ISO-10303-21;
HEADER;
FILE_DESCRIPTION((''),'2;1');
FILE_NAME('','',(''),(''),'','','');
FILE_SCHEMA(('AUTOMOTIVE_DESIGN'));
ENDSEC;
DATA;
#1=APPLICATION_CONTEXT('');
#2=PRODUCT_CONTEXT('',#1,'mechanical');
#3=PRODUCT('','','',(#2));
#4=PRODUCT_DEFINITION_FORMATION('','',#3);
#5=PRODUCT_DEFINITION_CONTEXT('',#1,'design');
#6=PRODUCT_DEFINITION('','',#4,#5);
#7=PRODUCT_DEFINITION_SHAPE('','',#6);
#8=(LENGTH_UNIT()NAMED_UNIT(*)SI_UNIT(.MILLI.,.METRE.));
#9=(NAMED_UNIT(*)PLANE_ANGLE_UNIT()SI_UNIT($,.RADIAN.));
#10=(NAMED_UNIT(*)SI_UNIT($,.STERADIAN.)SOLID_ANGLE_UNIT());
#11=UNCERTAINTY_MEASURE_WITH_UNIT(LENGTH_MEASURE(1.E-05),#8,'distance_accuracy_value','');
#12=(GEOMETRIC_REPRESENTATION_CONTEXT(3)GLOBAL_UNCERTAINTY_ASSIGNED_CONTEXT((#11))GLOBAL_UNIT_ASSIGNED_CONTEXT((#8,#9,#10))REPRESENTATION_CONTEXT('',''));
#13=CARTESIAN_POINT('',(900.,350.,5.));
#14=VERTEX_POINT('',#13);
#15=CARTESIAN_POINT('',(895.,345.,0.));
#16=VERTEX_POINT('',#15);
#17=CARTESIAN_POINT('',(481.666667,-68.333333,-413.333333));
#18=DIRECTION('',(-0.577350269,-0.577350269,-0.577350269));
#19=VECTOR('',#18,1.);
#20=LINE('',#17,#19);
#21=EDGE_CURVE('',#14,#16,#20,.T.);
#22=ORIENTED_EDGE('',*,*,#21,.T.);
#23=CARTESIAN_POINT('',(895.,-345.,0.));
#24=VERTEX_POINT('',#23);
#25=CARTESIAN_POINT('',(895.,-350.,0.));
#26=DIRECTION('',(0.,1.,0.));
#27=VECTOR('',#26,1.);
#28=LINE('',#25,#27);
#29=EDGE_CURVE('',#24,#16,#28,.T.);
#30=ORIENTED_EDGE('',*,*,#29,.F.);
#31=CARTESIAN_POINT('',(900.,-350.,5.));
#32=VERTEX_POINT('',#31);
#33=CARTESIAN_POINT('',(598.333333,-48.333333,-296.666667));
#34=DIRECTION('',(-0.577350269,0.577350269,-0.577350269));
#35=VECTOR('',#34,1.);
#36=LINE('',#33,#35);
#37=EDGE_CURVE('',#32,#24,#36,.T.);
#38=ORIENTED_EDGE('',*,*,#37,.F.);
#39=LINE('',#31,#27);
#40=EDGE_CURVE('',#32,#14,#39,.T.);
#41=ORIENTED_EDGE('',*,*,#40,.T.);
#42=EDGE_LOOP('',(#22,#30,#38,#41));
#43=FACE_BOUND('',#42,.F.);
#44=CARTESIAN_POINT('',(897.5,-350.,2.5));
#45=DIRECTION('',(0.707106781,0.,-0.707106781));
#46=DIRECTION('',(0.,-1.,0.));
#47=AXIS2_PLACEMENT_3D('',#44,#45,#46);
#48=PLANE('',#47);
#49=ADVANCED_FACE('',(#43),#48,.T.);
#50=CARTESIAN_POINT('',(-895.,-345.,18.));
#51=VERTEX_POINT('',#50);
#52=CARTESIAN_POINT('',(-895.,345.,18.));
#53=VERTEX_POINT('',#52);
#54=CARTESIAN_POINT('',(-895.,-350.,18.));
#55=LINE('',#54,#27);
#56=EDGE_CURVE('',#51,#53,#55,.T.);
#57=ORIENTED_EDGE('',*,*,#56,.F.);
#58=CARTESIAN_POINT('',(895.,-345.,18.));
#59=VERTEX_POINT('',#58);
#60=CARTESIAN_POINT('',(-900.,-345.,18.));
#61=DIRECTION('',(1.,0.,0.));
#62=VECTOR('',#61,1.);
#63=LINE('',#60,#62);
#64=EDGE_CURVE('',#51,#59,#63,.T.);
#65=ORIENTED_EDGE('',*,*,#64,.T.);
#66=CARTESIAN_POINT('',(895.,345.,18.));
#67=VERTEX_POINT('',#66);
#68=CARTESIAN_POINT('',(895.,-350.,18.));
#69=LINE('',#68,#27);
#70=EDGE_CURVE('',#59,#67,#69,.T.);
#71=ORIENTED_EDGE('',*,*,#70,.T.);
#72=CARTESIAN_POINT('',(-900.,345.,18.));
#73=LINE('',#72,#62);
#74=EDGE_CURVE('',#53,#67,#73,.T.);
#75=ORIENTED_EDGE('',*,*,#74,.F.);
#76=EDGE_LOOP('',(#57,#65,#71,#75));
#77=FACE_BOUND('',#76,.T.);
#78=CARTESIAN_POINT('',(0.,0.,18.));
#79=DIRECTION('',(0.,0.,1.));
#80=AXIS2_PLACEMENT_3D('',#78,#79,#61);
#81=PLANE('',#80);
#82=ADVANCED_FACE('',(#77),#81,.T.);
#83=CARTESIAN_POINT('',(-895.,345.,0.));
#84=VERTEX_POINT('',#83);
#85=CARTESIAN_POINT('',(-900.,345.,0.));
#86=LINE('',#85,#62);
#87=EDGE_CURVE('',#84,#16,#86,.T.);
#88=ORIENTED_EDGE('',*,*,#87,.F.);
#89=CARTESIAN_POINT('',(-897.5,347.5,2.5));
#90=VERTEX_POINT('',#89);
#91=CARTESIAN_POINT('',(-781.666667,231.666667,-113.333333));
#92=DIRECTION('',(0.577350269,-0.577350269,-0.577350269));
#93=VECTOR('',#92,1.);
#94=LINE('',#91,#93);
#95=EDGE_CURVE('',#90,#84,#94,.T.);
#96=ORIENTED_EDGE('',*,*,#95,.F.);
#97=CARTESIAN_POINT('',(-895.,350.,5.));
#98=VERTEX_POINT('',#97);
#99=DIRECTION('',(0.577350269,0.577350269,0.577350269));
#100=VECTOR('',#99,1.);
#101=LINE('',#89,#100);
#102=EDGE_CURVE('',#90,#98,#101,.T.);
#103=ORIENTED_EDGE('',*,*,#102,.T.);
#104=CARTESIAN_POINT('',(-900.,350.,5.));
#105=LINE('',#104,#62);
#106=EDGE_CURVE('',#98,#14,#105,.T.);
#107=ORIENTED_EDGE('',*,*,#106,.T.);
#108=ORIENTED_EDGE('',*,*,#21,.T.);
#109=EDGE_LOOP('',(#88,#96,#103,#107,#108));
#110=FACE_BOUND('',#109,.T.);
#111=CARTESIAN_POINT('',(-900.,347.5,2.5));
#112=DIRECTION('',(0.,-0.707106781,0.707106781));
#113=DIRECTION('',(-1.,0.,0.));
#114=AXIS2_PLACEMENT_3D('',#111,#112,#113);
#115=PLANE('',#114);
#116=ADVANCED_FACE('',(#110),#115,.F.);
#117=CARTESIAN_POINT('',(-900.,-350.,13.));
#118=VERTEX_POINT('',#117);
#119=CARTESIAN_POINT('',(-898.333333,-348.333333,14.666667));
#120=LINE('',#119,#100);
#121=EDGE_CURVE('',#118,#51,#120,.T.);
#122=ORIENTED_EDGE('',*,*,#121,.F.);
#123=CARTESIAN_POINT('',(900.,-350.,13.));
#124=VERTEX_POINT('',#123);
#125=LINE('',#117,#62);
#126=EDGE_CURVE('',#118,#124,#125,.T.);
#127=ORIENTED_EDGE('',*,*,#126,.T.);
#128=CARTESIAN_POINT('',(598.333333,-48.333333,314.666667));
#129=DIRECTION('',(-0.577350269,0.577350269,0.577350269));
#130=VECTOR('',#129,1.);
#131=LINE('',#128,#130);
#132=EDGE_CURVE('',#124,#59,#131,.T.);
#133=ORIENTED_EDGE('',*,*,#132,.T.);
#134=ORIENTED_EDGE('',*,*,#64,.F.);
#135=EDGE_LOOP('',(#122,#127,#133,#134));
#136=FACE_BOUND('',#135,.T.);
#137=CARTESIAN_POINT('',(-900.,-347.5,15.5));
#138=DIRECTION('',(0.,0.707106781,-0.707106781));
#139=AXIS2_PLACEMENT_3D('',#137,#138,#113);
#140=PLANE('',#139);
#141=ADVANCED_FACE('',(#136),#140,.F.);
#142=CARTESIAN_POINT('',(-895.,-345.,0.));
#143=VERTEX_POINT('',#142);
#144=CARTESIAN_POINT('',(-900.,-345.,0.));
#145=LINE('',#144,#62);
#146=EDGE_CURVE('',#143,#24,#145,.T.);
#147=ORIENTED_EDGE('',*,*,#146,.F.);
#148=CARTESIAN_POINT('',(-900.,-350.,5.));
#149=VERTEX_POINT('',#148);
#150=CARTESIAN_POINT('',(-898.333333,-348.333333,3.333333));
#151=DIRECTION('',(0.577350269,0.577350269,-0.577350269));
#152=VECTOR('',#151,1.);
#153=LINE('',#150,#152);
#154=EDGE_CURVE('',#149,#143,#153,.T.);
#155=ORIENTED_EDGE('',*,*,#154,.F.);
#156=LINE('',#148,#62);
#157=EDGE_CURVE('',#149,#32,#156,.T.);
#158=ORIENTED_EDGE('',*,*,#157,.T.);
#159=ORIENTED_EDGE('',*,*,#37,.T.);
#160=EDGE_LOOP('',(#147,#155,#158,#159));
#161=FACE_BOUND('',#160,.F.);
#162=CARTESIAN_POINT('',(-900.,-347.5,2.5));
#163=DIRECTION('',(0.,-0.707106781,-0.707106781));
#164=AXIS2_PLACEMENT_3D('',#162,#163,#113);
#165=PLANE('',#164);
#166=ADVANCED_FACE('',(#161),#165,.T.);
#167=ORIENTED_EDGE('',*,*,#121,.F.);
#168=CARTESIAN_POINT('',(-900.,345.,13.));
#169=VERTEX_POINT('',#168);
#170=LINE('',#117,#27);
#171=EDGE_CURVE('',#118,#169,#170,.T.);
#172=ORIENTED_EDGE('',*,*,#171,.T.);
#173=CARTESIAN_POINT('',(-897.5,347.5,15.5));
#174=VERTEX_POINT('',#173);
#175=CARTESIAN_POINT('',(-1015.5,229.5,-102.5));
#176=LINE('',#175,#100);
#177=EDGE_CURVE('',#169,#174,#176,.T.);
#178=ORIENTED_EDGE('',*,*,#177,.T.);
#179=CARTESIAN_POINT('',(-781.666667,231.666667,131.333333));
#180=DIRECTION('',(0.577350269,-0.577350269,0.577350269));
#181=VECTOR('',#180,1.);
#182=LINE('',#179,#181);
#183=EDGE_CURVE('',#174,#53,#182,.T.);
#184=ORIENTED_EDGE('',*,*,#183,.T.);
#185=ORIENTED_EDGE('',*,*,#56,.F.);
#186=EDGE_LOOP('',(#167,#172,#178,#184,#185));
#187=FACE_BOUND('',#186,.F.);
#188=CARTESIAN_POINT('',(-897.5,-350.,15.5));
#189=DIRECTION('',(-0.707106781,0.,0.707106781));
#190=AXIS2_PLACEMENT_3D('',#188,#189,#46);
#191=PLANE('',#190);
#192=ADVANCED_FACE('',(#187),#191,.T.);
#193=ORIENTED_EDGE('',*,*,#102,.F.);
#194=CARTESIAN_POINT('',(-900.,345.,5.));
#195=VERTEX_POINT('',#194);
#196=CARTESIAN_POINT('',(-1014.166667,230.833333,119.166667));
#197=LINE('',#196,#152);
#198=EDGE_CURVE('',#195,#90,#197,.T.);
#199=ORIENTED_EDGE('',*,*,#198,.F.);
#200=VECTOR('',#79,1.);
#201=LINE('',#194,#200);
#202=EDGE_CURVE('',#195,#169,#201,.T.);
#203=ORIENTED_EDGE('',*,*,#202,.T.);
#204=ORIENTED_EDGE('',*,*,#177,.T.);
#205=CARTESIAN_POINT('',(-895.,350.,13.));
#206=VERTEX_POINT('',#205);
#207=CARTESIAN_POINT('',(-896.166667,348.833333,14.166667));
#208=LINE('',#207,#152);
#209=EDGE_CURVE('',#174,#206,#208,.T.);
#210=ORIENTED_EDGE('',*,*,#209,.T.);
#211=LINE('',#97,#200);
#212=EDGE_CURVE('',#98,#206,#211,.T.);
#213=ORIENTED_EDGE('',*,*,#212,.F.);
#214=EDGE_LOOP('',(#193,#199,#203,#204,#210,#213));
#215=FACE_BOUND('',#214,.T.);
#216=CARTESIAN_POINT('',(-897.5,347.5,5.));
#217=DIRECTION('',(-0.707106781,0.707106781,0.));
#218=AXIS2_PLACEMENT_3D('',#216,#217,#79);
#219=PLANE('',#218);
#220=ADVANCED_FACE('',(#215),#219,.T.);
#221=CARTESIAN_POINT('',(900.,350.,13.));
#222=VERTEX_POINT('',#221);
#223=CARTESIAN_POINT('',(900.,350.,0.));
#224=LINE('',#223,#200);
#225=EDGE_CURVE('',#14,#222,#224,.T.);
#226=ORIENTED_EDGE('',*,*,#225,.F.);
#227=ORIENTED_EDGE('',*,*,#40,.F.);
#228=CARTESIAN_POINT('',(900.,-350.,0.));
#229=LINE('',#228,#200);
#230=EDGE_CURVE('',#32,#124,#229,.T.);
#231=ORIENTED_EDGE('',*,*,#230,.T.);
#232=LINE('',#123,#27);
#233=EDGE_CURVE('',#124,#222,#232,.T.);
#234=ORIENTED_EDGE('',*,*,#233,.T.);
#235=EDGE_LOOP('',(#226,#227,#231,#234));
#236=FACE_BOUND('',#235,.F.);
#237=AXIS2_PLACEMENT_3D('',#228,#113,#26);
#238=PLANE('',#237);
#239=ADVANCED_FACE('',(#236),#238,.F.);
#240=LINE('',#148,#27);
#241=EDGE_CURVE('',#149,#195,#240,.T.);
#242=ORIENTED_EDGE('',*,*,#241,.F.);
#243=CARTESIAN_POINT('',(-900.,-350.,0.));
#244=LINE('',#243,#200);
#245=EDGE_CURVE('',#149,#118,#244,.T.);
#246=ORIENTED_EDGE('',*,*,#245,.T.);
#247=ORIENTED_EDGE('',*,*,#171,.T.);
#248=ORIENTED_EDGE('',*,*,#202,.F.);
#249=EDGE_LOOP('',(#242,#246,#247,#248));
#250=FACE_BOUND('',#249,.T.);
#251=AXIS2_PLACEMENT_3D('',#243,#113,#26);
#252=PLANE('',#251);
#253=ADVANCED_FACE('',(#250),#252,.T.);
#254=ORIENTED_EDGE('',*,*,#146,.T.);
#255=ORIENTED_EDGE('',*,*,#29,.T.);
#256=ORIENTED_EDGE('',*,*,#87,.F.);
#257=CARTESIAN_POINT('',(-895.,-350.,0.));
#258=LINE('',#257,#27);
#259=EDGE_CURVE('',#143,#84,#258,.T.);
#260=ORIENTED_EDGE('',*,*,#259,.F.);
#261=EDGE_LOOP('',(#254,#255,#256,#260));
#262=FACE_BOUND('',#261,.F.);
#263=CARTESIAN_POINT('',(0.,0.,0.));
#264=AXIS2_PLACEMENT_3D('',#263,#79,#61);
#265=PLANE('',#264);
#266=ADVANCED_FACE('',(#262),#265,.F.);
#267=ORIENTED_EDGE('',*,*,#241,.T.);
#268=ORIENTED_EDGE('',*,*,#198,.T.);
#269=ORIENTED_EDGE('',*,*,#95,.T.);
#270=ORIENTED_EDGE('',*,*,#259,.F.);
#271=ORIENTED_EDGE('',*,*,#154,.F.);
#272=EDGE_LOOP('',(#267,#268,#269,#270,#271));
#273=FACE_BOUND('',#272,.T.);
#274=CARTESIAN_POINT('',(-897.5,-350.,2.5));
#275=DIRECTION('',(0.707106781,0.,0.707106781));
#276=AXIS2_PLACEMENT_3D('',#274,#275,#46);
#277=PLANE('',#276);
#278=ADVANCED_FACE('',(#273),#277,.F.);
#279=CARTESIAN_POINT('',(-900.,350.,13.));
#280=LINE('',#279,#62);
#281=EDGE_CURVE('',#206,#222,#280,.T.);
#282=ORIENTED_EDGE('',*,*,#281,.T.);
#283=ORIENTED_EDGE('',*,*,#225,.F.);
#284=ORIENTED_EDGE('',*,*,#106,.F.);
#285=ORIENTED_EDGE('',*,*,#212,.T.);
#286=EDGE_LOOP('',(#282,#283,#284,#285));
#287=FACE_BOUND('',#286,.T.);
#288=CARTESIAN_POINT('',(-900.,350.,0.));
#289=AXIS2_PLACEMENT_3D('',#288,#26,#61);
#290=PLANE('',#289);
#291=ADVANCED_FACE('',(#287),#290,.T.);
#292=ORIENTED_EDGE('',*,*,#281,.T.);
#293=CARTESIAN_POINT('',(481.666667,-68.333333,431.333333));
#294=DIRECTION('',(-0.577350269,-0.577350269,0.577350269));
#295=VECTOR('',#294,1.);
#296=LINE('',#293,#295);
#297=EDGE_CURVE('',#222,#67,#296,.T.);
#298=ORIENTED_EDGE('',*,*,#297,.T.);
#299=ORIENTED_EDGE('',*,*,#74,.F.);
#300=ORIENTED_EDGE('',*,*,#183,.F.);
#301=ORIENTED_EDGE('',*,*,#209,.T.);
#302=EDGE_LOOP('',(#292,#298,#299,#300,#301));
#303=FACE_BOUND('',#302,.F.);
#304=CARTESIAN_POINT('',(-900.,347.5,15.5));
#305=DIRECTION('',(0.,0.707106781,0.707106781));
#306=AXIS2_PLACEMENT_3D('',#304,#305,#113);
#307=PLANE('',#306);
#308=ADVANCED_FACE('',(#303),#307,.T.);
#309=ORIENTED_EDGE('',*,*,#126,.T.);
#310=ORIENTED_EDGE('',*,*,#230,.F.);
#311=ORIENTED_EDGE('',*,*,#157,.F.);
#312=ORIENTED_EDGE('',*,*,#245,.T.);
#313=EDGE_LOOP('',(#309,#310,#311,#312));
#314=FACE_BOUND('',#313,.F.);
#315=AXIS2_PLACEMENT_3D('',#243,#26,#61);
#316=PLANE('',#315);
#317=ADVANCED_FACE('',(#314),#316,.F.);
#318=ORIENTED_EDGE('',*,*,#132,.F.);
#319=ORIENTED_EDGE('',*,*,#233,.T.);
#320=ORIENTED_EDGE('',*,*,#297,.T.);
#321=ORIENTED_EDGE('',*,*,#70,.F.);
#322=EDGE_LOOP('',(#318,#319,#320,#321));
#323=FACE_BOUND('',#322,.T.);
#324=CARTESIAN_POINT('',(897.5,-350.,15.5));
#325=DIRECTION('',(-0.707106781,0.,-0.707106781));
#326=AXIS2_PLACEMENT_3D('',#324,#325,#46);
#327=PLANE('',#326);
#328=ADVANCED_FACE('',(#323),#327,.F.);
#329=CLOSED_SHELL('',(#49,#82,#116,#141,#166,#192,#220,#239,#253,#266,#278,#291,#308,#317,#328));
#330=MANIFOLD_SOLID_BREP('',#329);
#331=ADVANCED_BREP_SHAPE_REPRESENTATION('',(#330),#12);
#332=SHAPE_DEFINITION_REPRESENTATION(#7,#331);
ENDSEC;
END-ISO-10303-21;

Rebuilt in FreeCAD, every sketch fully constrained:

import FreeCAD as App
import Part
import Sketcher

V = App.Vector


def edges_at(feature, points):
    """Names of the edges that pass closest to the given points."""
    edges = feature.Shape.Edges
    near = lambda p: min(range(len(edges)), key=lambda i: edges[i].distToShape(Part.Vertex(*p))[0])
    return sorted({f"Edge{near(p) + 1}" for p in points})

doc = App.newDocument("Part")
params = doc.addObject("Spreadsheet::Sheet", "Params")
for row, (alias, value) in enumerate([
    ("sketch1_width", "1800 mm"),
    ("sketch1_height", "700 mm"),
    ("pad1_length", "18 mm"),
    ("chamfer_size", "5 mm"),
    ("chamfer2_size", "5 mm"),
], start=1):
    params.set(f"A{row}", alias)
    params.set(f"B{row}", "=" + value)
    params.setAlias(f"B{row}", alias)

body = doc.addObject("PartDesign::Body", "Body")

sketch1 = body.newObject("Sketcher::SketchObject", "Sketch")
sketch1.AttachmentSupport = (doc.getObject("XY_Plane"), [""])
sketch1.MapMode = "FlatFace"
sketch1.addGeometry(Part.LineSegment(V(-900, 350, 0), V(-900, -350, 0)), False)
sketch1.addGeometry(Part.LineSegment(V(-900, -350, 0), V(900, -350, 0)), False)
sketch1.addGeometry(Part.LineSegment(V(900, -350, 0), V(900, 350, 0)), False)
sketch1.addGeometry(Part.LineSegment(V(900, 350, 0), V(-900, 350, 0)), False)
sketch1.addConstraint(Sketcher.Constraint("Coincident", 0, 2, 1, 1))
sketch1.addConstraint(Sketcher.Constraint("Coincident", 1, 2, 2, 1))
sketch1.addConstraint(Sketcher.Constraint("Coincident", 2, 2, 3, 1))
sketch1.addConstraint(Sketcher.Constraint("Coincident", 3, 2, 0, 1))
sketch1.addConstraint(Sketcher.Constraint("Vertical", 0))
sketch1.addConstraint(Sketcher.Constraint("Horizontal", 1))
sketch1.addConstraint(Sketcher.Constraint("Vertical", 2))
sketch1.addConstraint(Sketcher.Constraint("Horizontal", 3))
sketch1.addConstraint(Sketcher.Constraint("Symmetric", 0, 2, 2, 2, -1, 1))
sketch1.addConstraint(Sketcher.Constraint("DistanceX", 1, 1, 1, 2, 1800.0))
sketch1.addConstraint(Sketcher.Constraint("DistanceY", 0, 2, 0, 1, 700.0))
sketch1.setExpression("Constraints[9]", "Params.sketch1_width")
sketch1.setExpression("Constraints[10]", "Params.sketch1_height")
pad1 = body.newObject("PartDesign::Pad", "Pad")
pad1.Profile = sketch1
pad1.setExpression("Length", "Params.pad1_length")
doc.recompute()

chamfer = body.newObject("PartDesign::Chamfer", "Chamfer")
chamfer.Base = (pad1, edges_at(pad1, [
    (900, 0, 18),
    (0, 350, 18),
    (-900, 0, 18),
    (0, -350, 18),
    (900, 0, 0),
    (0, 350, 0),
    (-900, 0, 0),
    (0, -350, 0),
]))
chamfer.setExpression("Size", "Params.chamfer_size")
doc.recompute()

chamfer2 = body.newObject("PartDesign::Chamfer", "Chamfer001")
chamfer2.Base = (chamfer, edges_at(chamfer, [(-900, 350, 9)]))
chamfer2.setExpression("Size", "Params.chamfer2_size")

doc.recompute()
